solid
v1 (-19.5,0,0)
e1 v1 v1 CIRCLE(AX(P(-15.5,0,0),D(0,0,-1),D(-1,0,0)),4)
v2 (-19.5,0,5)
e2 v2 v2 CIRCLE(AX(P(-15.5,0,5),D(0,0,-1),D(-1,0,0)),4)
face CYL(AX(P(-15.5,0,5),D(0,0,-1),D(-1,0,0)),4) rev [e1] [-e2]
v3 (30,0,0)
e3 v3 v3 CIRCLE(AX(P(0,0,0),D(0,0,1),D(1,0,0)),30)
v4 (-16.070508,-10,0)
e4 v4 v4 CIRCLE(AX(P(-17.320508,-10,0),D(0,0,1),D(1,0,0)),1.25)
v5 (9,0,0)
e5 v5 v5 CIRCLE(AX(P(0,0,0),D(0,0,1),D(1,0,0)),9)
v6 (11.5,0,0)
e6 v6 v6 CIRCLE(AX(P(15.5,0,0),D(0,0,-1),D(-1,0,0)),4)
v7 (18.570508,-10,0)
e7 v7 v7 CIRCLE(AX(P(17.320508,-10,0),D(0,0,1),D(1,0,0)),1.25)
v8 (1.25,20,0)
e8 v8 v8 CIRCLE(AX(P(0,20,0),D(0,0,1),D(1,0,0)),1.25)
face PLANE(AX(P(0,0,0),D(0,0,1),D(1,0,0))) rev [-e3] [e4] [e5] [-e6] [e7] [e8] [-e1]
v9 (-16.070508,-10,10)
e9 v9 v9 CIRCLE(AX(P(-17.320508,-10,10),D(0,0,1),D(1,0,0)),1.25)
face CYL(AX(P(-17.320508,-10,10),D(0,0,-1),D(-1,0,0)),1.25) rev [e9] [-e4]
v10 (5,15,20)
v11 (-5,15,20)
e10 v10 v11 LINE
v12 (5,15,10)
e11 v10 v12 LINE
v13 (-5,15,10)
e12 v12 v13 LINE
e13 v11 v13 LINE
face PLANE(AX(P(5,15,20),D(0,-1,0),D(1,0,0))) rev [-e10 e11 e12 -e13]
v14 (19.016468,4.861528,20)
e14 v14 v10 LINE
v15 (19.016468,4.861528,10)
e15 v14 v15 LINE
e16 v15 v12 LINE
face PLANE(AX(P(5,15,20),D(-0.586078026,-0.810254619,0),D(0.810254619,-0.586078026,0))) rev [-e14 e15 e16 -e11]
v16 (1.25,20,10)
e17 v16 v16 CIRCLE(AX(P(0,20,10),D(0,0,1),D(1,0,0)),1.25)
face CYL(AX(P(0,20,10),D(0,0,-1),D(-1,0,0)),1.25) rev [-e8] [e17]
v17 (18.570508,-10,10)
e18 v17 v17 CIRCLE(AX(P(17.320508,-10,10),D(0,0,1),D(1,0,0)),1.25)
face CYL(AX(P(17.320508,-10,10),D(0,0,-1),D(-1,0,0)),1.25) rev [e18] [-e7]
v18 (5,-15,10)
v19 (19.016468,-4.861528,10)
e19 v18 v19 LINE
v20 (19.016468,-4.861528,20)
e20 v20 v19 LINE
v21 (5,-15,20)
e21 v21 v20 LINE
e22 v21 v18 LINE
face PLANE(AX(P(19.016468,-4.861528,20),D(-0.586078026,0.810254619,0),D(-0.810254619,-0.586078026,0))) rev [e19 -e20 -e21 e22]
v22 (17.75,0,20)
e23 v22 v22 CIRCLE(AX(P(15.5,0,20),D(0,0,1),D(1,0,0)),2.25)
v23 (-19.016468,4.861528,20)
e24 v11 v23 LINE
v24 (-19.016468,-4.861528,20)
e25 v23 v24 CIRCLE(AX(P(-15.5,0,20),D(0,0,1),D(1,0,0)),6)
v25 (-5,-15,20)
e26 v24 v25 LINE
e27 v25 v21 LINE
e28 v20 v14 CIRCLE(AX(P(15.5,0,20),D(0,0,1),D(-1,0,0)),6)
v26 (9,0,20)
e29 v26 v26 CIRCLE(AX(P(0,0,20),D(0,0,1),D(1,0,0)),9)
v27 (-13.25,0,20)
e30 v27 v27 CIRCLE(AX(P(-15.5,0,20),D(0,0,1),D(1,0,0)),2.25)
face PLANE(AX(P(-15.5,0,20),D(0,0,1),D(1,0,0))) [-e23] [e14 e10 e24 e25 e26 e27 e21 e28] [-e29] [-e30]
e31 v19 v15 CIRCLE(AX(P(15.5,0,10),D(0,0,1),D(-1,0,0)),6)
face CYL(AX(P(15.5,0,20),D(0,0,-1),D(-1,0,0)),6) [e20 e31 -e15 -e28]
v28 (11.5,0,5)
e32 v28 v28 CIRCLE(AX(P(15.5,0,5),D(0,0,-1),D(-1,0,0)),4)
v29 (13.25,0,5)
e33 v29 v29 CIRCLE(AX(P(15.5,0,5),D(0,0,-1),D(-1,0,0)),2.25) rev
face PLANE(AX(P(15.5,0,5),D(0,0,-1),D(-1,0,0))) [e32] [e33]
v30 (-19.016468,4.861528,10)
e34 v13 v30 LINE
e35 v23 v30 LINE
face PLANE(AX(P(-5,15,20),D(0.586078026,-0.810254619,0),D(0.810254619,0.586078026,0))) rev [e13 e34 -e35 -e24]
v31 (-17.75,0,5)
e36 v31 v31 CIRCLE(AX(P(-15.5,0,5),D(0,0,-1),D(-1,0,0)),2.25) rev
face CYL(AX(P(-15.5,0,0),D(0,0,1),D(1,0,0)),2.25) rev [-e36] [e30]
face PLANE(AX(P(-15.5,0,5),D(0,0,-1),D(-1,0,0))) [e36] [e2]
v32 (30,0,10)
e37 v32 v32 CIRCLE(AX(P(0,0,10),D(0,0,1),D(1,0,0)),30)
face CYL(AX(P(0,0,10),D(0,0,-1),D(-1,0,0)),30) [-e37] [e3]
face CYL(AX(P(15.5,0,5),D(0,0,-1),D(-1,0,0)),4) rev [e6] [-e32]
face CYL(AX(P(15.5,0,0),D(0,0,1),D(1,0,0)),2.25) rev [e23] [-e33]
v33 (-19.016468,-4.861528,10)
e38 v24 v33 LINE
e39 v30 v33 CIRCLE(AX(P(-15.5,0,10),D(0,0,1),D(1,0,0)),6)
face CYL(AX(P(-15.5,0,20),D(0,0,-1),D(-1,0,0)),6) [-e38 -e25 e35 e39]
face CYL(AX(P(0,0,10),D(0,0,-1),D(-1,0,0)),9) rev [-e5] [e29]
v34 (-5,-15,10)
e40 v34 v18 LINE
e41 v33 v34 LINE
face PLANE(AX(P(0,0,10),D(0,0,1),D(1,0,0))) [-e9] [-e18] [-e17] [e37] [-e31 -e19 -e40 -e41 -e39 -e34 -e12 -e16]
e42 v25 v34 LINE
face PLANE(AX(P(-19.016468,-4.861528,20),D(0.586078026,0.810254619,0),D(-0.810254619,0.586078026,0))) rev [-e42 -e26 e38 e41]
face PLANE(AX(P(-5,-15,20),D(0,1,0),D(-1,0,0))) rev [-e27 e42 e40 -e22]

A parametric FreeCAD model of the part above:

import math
import FreeCAD as App
import Part
import Sketcher
Q = App.Units.Quantity

doc = App.newDocument("Part")
body = doc.addObject("PartDesign::Body", "Body")

# Sketch on XY plane
sketch1 = body.newObject("Sketcher::SketchObject", "Sketch")
sketch1.AttachmentSupport = (doc.getObject("XY_Plane"), [""])
sketch1.MapMode = "FlatFace"
sketch1.addGeometry([
    Part.Circle(App.Vector(0, 0, 0), App.Vector(0, 0, 1), 30),  # 0
    Part.Circle(App.Vector(-17.3, -10, 0), App.Vector(0, 0, 1), 1.2),  # 1
    Part.Circle(App.Vector(17.3, -10, 0), App.Vector(0, 0, 1), 1.2),  # 2
    Part.Circle(App.Vector(0, 0, 0), App.Vector(0, 0, 1), 9),  # 3
    Part.Circle(App.Vector(0, 20, 0), App.Vector(0, 0, 1), 1.2),  # 4
], False)
sketch1.addConstraint([
    Sketcher.Constraint("Coincident", 0, 3, -1, 1),
    Sketcher.Constraint("Coincident", 3, 3, -1, 1),
    Sketcher.Constraint("Equal", 1, 2),
    Sketcher.Constraint("Equal", 2, 4),
    Sketcher.Constraint("Symmetric", 1, 3, 2, 3, -2),
    Sketcher.Constraint("PointOnObject", 4, 3, -2),
    Sketcher.Constraint("Diameter", 0, Q("60 mm")),
    Sketcher.Constraint("Diameter", 3, Q("18 mm")),
    Sketcher.Constraint("Diameter", 1, Q("2.5 mm")),
    Sketcher.Constraint("DistanceY", 1, 3, -1, 1, Q("10 mm")),
    Sketcher.Constraint("DistanceY", -1, 1, 4, 3, Q("20 mm")),
    Sketcher.Constraint("DistanceX", 1, 3, -1, 1, Q("17.320508 mm")),
])
pad1 = body.newObject("PartDesign::Pad", "Pad")
pad1.Profile = sketch1
pad1.Length = 10

# Sketch on XY plane
sketch2 = body.newObject("Sketcher::SketchObject", "Sketch001")
sketch2.AttachmentSupport = (doc.getObject("XY_Plane"), [""])
sketch2.MapMode = "FlatFace"
sketch2.AttachmentOffset = App.Placement(App.Vector(0, 0, 10), App.Rotation())
sketch2.addGeometry([
    Part.LineSegment(App.Vector(5, 15, 0), App.Vector(-5, 15, 0)),  # 0
    Part.LineSegment(App.Vector(-5, 15, 0), App.Vector(-19, 5, 0)),  # 1
    Part.ArcOfCircle(Part.Circle(App.Vector(-16, 0, 0), App.Vector(0, 0, 1), 6), math.radians(126), math.radians(234)),  # 2
    Part.LineSegment(App.Vector(-19, -5, 0), App.Vector(-5, -15, 0)),  # 3
    Part.LineSegment(App.Vector(-5, -15, 0), App.Vector(5, -15, 0)),  # 4
    Part.LineSegment(App.Vector(5, -15, 0), App.Vector(19, -5, 0)),  # 5
    Part.ArcOfCircle(Part.Circle(App.Vector(16, 0, 0), App.Vector(0, 0, 1), 6), math.radians(-54), math.radians(54)),  # 6
    Part.LineSegment(App.Vector(19, 5, 0), App.Vector(5, 15, 0)),  # 7
    Part.Circle(App.Vector(0, 0, 0), App.Vector(0, 0, 1), 9),  # 8
], False)
sketch2.addConstraint([
    Sketcher.Constraint("Coincident", 0, 2, 1, 1),
    Sketcher.Constraint("Tangent", 1, 2, 2, 1),
    Sketcher.Constraint("Tangent", 2, 2, 3, 1),
    Sketcher.Constraint("Coincident", 3, 2, 4, 1),
    Sketcher.Constraint("Coincident", 4, 2, 5, 1),
    Sketcher.Constraint("Tangent", 5, 2, 6, 1),
    Sketcher.Constraint("Tangent", 6, 2, 7, 1),
    Sketcher.Constraint("Coincident", 7, 2, 0, 1),
    Sketcher.Constraint("Horizontal", 0),
    Sketcher.Constraint("Horizontal", 4),
    Sketcher.Constraint("Coincident", 8, 3, -1, 1),
    Sketcher.Constraint("Equal", 2, 6),
    Sketcher.Constraint("Symmetric", 2, 3, 6, 3, -1, 1),
    Sketcher.Constraint("Symmetric", 0, 2, 4, 2, -1, 1),
    Sketcher.Constraint("Symmetric", 2, 2, 5, 2, -2),
    Sketcher.Constraint("Parallel", 3, 7),
    Sketcher.Constraint("Diameter", 8, Q("18 mm")),
    Sketcher.Constraint("Radius", 2, Q("6 mm")),
    Sketcher.Constraint("DistanceX", 0, 2, 0, 1, Q("10 mm")),
    Sketcher.Constraint("DistanceY", -1, 1, 0, 2, Q("15 mm")),
    Sketcher.Constraint("DistanceX", 2, 3, 6, 3, Q("31 mm")),
])
pad2 = body.newObject("PartDesign::Pad", "Pad001")
pad2.Profile = sketch2
pad2.Length = 10

# Sketch on XY plane
sketch3 = body.newObject("Sketcher::SketchObject", "Sketch002")
sketch3.AttachmentSupport = (doc.getObject("XY_Plane"), [""])
sketch3.MapMode = "FlatFace"
sketch3.AttachmentOffset = App.Placement(App.Vector(0, 0, 10), App.Rotation())
sketch3.addGeometry([
    Part.Circle(App.Vector(-15.5, 0, 0), App.Vector(0, 0, 1), 2.2),
    Part.Circle(App.Vector(15.5, 0, 0), App.Vector(0, 0, 1), 2.2),
], False)
sketch3.addConstraint([
    Sketcher.Constraint("Equal", 0, 1),
    Sketcher.Constraint("Symmetric", 0, 3, 1, 3, -1, 1),
    Sketcher.Constraint("PointOnObject", 0, 3, -1),
    Sketcher.Constraint("Diameter", 0, Q("4.5 mm")),
    Sketcher.Constraint("DistanceX", 0, 3, 1, 3, Q("31 mm")),
])
pocket1 = body.newObject("PartDesign::Pocket", "Pocket")
pocket1.Profile = sketch3
pocket1.Type = "ThroughAll"
pocket1.Midplane = True

# Sketch on XY plane
sketch4 = body.newObject("Sketcher::SketchObject", "Sketch003")
sketch4.AttachmentSupport = (doc.getObject("XY_Plane"), [""])
sketch4.MapMode = "FlatFace"
sketch4.addGeometry([
    Part.Circle(App.Vector(15.5, 0, 0), App.Vector(0, 0, 1), 4),
    Part.Circle(App.Vector(-15.5, 0, 0), App.Vector(0, 0, 1), 4),
], False)
sketch4.addConstraint([
    Sketcher.Constraint("Equal", 0, 1),
    Sketcher.Constraint("Symmetric", 0, 3, 1, 3, -1, 1),
    Sketcher.Constraint("PointOnObject", 0, 3, -1),
    Sketcher.Constraint("Diameter", 0, Q("8 mm")),
    Sketcher.Constraint("DistanceX", 1, 3, 0, 3, Q("31 mm")),
])
pocket2 = body.newObject("PartDesign::Pocket", "Pocket001")
pocket2.Profile = sketch4
pocket2.Length = 5
pocket2.Reversed = True

doc.recompute()
